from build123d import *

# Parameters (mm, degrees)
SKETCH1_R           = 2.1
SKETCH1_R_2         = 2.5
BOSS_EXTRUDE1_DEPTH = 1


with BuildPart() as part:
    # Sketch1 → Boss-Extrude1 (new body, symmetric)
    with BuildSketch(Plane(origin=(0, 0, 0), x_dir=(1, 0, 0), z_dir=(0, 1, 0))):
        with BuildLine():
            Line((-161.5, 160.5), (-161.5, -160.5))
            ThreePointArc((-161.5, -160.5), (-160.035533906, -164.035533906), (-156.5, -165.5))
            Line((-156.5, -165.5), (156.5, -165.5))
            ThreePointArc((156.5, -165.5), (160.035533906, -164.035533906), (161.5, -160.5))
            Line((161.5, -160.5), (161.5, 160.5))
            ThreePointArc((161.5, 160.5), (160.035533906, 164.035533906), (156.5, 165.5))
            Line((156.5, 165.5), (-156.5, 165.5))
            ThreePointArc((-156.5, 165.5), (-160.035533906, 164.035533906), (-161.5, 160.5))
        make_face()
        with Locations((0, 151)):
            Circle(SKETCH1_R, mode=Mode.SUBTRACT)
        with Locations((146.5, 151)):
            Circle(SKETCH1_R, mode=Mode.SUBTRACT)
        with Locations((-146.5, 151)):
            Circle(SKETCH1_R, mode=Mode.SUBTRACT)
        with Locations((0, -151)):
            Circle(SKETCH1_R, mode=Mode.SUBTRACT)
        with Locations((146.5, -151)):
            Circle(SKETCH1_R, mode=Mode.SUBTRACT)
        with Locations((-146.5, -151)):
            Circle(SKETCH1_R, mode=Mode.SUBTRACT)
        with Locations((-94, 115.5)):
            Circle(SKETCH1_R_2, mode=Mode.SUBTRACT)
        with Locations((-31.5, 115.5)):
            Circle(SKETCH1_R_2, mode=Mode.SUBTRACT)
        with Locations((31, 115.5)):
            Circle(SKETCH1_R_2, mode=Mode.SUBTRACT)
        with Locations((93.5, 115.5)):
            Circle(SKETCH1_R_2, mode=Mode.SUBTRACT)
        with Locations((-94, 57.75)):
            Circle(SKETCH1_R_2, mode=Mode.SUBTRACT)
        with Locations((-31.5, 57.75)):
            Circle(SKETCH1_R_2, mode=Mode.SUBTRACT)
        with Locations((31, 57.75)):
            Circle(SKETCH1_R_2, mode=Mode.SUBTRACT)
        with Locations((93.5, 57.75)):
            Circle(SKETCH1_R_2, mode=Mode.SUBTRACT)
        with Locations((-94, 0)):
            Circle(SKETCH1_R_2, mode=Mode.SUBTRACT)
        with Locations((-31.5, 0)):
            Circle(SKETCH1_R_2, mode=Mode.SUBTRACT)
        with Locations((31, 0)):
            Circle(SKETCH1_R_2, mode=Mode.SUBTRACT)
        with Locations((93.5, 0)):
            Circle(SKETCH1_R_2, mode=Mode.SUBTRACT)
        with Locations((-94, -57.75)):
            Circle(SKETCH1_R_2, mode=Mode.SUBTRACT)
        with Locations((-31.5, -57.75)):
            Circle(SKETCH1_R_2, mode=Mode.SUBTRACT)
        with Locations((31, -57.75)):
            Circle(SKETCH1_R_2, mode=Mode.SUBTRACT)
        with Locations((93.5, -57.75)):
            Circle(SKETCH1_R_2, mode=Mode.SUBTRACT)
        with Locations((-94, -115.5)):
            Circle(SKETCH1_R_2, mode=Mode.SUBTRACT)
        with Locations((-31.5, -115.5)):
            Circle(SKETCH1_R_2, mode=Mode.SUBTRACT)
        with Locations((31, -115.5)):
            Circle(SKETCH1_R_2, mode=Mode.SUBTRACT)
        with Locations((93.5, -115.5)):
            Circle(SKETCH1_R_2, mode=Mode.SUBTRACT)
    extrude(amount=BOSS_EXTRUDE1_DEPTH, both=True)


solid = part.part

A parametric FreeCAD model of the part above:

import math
import FreeCAD as App
import Part
import Sketcher
from FreeCAD import Vector

doc = App.newDocument("Part")
body = doc.addObject("PartDesign::Body", "Body")

sketch1 = doc.addObject("Sketcher::SketchObject", "Sketch")
body.addObject(sketch1)
sketch1.AttachmentSupport = (doc.XZ_Plane, [""])
sketch1.MapMode = "FlatFace"
sketch1.addGeometry(Part.LineSegment(Vector(-161.5, -160.5, 0), Vector(-161.5, 160.5, 0)), False)
sketch1.addGeometry(Part.ArcOfCircle(Part.Circle(Vector(-156.5, 160.5, 0), Vector(0, 0, 1), 5), math.radians(90), math.radians(180)), False)
sketch1.addGeometry(Part.LineSegment(Vector(-156.5, 165.5, 0), Vector(156.5, 165.5, 0)), False)
sketch1.addGeometry(Part.ArcOfCircle(Part.Circle(Vector(156.5, 160.5, 0), Vector(0, 0, 1), 5), math.radians(0), math.radians(90)), False)
sketch1.addGeometry(Part.LineSegment(Vector(161.5, 160.5, 0), Vector(161.5, -160.5, 0)), False)
sketch1.addGeometry(Part.ArcOfCircle(Part.Circle(Vector(156.5, -160.5, 0), Vector(0, 0, 1), 5), math.radians(-90), math.radians(0)), False)
sketch1.addGeometry(Part.LineSegment(Vector(156.5, -165.5, 0), Vector(-156.5, -165.5, 0)), False)
sketch1.addGeometry(Part.ArcOfCircle(Part.Circle(Vector(-156.5, -160.5, 0), Vector(0, 0, 1), 5), math.radians(180), math.radians(270)), False)
sketch1.addGeometry(Part.Circle(Vector(-146.5, 151, 0), Vector(0, 0, 1), 2.1), False)
sketch1.addGeometry(Part.Circle(Vector(-94, 115.5, 0), Vector(0, 0, 1), 2.5), False)
sketch1.addGeometry(Part.Circle(Vector(-31.5, 115.5, 0), Vector(0, 0, 1), 2.5), False)
sketch1.addGeometry(Part.Circle(Vector(-94, 57.8, 0), Vector(0, 0, 1), 2.5), False)
sketch1.addGeometry(Part.Circle(Vector(-31.5, 57.8, 0), Vector(0, 0, 1), 2.5), False)
sketch1.addGeometry(Part.Circle(Vector(0, 151, 0), Vector(0, 0, 1), 2.1), False)
sketch1.addGeometry(Part.Circle(Vector(31, 115.5, 0), Vector(0, 0, 1), 2.5), False)
sketch1.addGeometry(Part.Circle(Vector(93.5, 115.5, 0), Vector(0, 0, 1), 2.5), False)
sketch1.addGeometry(Part.Circle(Vector(146.5, 151, 0), Vector(0, 0, 1), 2.1), False)
sketch1.addGeometry(Part.Circle(Vector(31, 57.8, 0), Vector(0, 0, 1), 2.5), False)
sketch1.addGeometry(Part.Circle(Vector(93.5, 57.8, 0), Vector(0, 0, 1), 2.5), False)
sketch1.addGeometry(Part.Circle(Vector(-94, 0, 0), Vector(0, 0, 1), 2.5), False)
sketch1.addGeometry(Part.Circle(Vector(-94, -57.8, 0), Vector(0, 0, 1), 2.5), False)
sketch1.addGeometry(Part.Circle(Vector(-31.5, 0, 0), Vector(0, 0, 1), 2.5), False)
sketch1.addGeometry(Part.Circle(Vector(-31.5, -57.8, 0), Vector(0, 0, 1), 2.5), False)
sketch1.addGeometry(Part.Circle(Vector(-146.5, -151, 0), Vector(0, 0, 1), 2.1), False)
sketch1.addGeometry(Part.Circle(Vector(-94, -115.5, 0), Vector(0, 0, 1), 2.5), False)
sketch1.addGeometry(Part.Circle(Vector(-31.5, -115.5, 0), Vector(0, 0, 1), 2.5), False)
sketch1.addGeometry(Part.Circle(Vector(31, 0, 0), Vector(0, 0, 1), 2.5), False)
sketch1.addGeometry(Part.Circle(Vector(31, -57.8, 0), Vector(0, 0, 1), 2.5), False)
sketch1.addGeometry(Part.Circle(Vector(93.5, 0, 0), Vector(0, 0, 1), 2.5), False)
sketch1.addGeometry(Part.Circle(Vector(93.5, -57.8, 0), Vector(0, 0, 1), 2.5), False)
sketch1.addGeometry(Part.Circle(Vector(31, -115.5, 0), Vector(0, 0, 1), 2.5), False)
sketch1.addGeometry(Part.Circle(Vector(0, -151, 0), Vector(0, 0, 1), 2.1), False)
sketch1.addGeometry(Part.Circle(Vector(93.5, -115.5, 0), Vector(0, 0, 1), 2.5), False)
sketch1.addGeometry(Part.Circle(Vector(146.5, -151, 0), Vector(0, 0, 1), 2.1), False)
sketch1.addConstraint(Sketcher.Constraint("Tangent", 0, 2, 1, 2))
sketch1.addConstraint(Sketcher.Constraint("Tangent", 1, 1, 2, 1))
sketch1.addConstraint(Sketcher.Constraint("Tangent", 2, 2, 3, 2))
sketch1.addConstraint(Sketcher.Constraint("Tangent", 3, 1, 4, 1))
sketch1.addConstraint(Sketcher.Constraint("Tangent", 4, 2, 5, 2))
sketch1.addConstraint(Sketcher.Constraint("Tangent", 5, 1, 6, 1))
sketch1.addConstraint(Sketcher.Constraint("Tangent", 6, 2, 7, 2))
sketch1.addConstraint(Sketcher.Constraint("Tangent", 7, 1, 0, 1))
sketch1.addConstraint(Sketcher.Constraint("Vertical", 0))
sketch1.addConstraint(Sketcher.Constraint("Horizontal", 2))
sketch1.addConstraint(Sketcher.Constraint("Vertical", 4))
sketch1.addConstraint(Sketcher.Constraint("Horizontal", 6))
sketch1.addConstraint(Sketcher.Constraint("Equal", 1, 3))
sketch1.addConstraint(Sketcher.Constraint("Equal", 3, 5))
sketch1.addConstraint(Sketcher.Constraint("Equal", 5, 7))
sketch1.addConstraint(Sketcher.Constraint("Equal", 9, 10))
sketch1.addConstraint(Sketcher.Constraint("Equal", 10, 11))
sketch1.addConstraint(Sketcher.Constraint("Equal", 11, 12))
sketch1.addConstraint(Sketcher.Constraint("Equal", 8, 13))
sketch1.addConstraint(Sketcher.Constraint("Equal", 12, 14))
sketch1.addConstraint(Sketcher.Constraint("Equal", 14, 15))
sketch1.addConstraint(Sketcher.Constraint("Equal", 13, 16))
sketch1.addConstraint(Sketcher.Constraint("Equal", 15, 17))
sketch1.addConstraint(Sketcher.Constraint("Equal", 17, 18))
sketch1.addConstraint(Sketcher.Constraint("Equal", 18, 19))
sketch1.addConstraint(Sketcher.Constraint("Equal", 19, 20))
sketch1.addConstraint(Sketcher.Constraint("Equal", 20, 21))
sketch1.addConstraint(Sketcher.Constraint("Equal", 21, 22))
sketch1.addConstraint(Sketcher.Constraint("Equal", 16, 23))
sketch1.addConstraint(Sketcher.Constraint("Equal", 22, 24))
sketch1.addConstraint(Sketcher.Constraint("Equal", 24, 25))
sketch1.addConstraint(Sketcher.Constraint("Equal", 25, 26))
sketch1.addConstraint(Sketcher.Constraint("Equal", 26, 27))
sketch1.addConstraint(Sketcher.Constraint("Equal", 27, 28))
sketch1.addConstraint(Sketcher.Constraint("Equal", 28, 29))
sketch1.addConstraint(Sketcher.Constraint("Equal", 29, 30))
sketch1.addConstraint(Sketcher.Constraint("Equal", 23, 31))
sketch1.addConstraint(Sketcher.Constraint("Equal", 30, 32))
sketch1.addConstraint(Sketcher.Constraint("Equal", 31, 33))
sketch1.addConstraint(Sketcher.Constraint("Symmetric", 1, 3, 5, 3, -1, 1))
sketch1.addConstraint(Sketcher.Constraint("Symmetric", 16, 3, 23, 3, -1, 1))
sketch1.addConstraint(Sketcher.Constraint("Symmetric", 13, 3, 31, 3, -1, 1))
sketch1.addConstraint(Sketcher.Constraint("Symmetric", 8, 3, 33, 3, -1, 1))
sketch1.addConstraint(Sketcher.Constraint("Symmetric", 8, 3, 16, 3, -2))
sketch1.addConstraint(Sketcher.Constraint("Symmetric", 11, 3, 20, 3, -1))
sketch1.addConstraint(Sketcher.Constraint("Symmetric", 12, 3, 22, 3, -1))
sketch1.addConstraint(Sketcher.Constraint("Symmetric", 9, 3, 24, 3, -1))
sketch1.addConstraint(Sketcher.Constraint("Symmetric", 10, 3, 25, 3, -1))
sketch1.addConstraint(Sketcher.Constraint("Symmetric", 17, 3, 27, 3, -1))
sketch1.addConstraint(Sketcher.Constraint("Symmetric", 18, 3, 29, 3, -1))
sketch1.addConstraint(Sketcher.Constraint("Symmetric", 14, 3, 30, 3, -1))
sketch1.addConstraint(Sketcher.Constraint("Symmetric", 15, 3, 32, 3, -1))
sketch1.addConstraint(Sketcher.Constraint("PointOnObject", 13, 3, -2))
sketch1.addConstraint(Sketcher.Constraint("PointOnObject", 19, 3, -1))
sketch1.addConstraint(Sketcher.Constraint("PointOnObject", 21, 3, -1))
sketch1.addConstraint(Sketcher.Constraint("PointOnObject", 26, 3, -1))
sketch1.addConstraint(Sketcher.Constraint("PointOnObject", 28, 3, -1))
sketch1.addConstraint(Sketcher.Constraint("Horizontal", 9, 3, 10, 3))
sketch1.addConstraint(Sketcher.Constraint("Horizontal", 11, 3, 12, 3))
sketch1.addConstraint(Sketcher.Constraint("Horizontal", 8, 3, 13, 3))
sketch1.addConstraint(Sketcher.Constraint("Horizontal", 10, 3, 14, 3))
sketch1.addConstraint(Sketcher.Constraint("Horizontal", 14, 3, 15, 3))
sketch1.addConstraint(Sketcher.Constraint("Horizontal", 12, 3, 17, 3))
sketch1.addConstraint(Sketcher.Constraint("Horizontal", 17, 3, 18, 3))
sketch1.addConstraint(Sketcher.Constraint("Vertical", 9, 3, 11, 3))
sketch1.addConstraint(Sketcher.Constraint("Vertical", 10, 3, 12, 3))
sketch1.addConstraint(Sketcher.Constraint("Vertical", 14, 3, 17, 3))
sketch1.addConstraint(Sketcher.Constraint("Vertical", 15, 3, 18, 3))
sketch1.addConstraint(Sketcher.Constraint("Vertical", 11, 3, 19, 3))
sketch1.addConstraint(Sketcher.Constraint("Vertical", 12, 3, 21, 3))
sketch1.addConstraint(Sketcher.Constraint("Vertical", 17, 3, 26, 3))
sketch1.addConstraint(Sketcher.Constraint("Vertical", 18, 3, 28, 3))
sketch1.addConstraint(Sketcher.Constraint("Diameter", 9, 5.0))
sketch1.addConstraint(Sketcher.Constraint("Radius", 1, 5.0))
sketch1.addConstraint(Sketcher.Constraint("Diameter", 8, 4.2))
sketch1.addConstraint(Sketcher.Constraint("DistanceX", 2, 1, 2, 2, 313.0))
sketch1.addConstraint(Sketcher.Constraint("DistanceY", 0, 1, 0, 2, 321.0))
sketch1.addConstraint(Sketcher.Constraint("DistanceY", -1, 1, 8, 3, 151.0))
sketch1.addConstraint(Sketcher.Constraint("DistanceX", 9, 3, -1, 1, 94.0))
sketch1.addConstraint(Sketcher.Constraint("DistanceX", -1, 1, 14, 3, 31.0))
sketch1.addConstraint(Sketcher.Constraint("DistanceX", 1, 3, 8, 3, 10.0))
sketch1.addConstraint(Sketcher.Constraint("DistanceY", 9, 3, 1, 3, 45.0))
sketch1.addConstraint(Sketcher.Constraint("DistanceX", 8, 3, 10, 3, 115.0))
sketch1.addConstraint(Sketcher.Constraint("DistanceX", 15, 3, 3, 3, 63.0))
sketch1.addConstraint(Sketcher.Constraint("DistanceY", 20, 3, 11, 3, 115.5))
pad1 = doc.addObject("PartDesign::Pad", "Pad")
body.addObject(pad1)
pad1.Profile = sketch1
pad1.Length = 2
pad1.Midplane = True

doc.recompute()
